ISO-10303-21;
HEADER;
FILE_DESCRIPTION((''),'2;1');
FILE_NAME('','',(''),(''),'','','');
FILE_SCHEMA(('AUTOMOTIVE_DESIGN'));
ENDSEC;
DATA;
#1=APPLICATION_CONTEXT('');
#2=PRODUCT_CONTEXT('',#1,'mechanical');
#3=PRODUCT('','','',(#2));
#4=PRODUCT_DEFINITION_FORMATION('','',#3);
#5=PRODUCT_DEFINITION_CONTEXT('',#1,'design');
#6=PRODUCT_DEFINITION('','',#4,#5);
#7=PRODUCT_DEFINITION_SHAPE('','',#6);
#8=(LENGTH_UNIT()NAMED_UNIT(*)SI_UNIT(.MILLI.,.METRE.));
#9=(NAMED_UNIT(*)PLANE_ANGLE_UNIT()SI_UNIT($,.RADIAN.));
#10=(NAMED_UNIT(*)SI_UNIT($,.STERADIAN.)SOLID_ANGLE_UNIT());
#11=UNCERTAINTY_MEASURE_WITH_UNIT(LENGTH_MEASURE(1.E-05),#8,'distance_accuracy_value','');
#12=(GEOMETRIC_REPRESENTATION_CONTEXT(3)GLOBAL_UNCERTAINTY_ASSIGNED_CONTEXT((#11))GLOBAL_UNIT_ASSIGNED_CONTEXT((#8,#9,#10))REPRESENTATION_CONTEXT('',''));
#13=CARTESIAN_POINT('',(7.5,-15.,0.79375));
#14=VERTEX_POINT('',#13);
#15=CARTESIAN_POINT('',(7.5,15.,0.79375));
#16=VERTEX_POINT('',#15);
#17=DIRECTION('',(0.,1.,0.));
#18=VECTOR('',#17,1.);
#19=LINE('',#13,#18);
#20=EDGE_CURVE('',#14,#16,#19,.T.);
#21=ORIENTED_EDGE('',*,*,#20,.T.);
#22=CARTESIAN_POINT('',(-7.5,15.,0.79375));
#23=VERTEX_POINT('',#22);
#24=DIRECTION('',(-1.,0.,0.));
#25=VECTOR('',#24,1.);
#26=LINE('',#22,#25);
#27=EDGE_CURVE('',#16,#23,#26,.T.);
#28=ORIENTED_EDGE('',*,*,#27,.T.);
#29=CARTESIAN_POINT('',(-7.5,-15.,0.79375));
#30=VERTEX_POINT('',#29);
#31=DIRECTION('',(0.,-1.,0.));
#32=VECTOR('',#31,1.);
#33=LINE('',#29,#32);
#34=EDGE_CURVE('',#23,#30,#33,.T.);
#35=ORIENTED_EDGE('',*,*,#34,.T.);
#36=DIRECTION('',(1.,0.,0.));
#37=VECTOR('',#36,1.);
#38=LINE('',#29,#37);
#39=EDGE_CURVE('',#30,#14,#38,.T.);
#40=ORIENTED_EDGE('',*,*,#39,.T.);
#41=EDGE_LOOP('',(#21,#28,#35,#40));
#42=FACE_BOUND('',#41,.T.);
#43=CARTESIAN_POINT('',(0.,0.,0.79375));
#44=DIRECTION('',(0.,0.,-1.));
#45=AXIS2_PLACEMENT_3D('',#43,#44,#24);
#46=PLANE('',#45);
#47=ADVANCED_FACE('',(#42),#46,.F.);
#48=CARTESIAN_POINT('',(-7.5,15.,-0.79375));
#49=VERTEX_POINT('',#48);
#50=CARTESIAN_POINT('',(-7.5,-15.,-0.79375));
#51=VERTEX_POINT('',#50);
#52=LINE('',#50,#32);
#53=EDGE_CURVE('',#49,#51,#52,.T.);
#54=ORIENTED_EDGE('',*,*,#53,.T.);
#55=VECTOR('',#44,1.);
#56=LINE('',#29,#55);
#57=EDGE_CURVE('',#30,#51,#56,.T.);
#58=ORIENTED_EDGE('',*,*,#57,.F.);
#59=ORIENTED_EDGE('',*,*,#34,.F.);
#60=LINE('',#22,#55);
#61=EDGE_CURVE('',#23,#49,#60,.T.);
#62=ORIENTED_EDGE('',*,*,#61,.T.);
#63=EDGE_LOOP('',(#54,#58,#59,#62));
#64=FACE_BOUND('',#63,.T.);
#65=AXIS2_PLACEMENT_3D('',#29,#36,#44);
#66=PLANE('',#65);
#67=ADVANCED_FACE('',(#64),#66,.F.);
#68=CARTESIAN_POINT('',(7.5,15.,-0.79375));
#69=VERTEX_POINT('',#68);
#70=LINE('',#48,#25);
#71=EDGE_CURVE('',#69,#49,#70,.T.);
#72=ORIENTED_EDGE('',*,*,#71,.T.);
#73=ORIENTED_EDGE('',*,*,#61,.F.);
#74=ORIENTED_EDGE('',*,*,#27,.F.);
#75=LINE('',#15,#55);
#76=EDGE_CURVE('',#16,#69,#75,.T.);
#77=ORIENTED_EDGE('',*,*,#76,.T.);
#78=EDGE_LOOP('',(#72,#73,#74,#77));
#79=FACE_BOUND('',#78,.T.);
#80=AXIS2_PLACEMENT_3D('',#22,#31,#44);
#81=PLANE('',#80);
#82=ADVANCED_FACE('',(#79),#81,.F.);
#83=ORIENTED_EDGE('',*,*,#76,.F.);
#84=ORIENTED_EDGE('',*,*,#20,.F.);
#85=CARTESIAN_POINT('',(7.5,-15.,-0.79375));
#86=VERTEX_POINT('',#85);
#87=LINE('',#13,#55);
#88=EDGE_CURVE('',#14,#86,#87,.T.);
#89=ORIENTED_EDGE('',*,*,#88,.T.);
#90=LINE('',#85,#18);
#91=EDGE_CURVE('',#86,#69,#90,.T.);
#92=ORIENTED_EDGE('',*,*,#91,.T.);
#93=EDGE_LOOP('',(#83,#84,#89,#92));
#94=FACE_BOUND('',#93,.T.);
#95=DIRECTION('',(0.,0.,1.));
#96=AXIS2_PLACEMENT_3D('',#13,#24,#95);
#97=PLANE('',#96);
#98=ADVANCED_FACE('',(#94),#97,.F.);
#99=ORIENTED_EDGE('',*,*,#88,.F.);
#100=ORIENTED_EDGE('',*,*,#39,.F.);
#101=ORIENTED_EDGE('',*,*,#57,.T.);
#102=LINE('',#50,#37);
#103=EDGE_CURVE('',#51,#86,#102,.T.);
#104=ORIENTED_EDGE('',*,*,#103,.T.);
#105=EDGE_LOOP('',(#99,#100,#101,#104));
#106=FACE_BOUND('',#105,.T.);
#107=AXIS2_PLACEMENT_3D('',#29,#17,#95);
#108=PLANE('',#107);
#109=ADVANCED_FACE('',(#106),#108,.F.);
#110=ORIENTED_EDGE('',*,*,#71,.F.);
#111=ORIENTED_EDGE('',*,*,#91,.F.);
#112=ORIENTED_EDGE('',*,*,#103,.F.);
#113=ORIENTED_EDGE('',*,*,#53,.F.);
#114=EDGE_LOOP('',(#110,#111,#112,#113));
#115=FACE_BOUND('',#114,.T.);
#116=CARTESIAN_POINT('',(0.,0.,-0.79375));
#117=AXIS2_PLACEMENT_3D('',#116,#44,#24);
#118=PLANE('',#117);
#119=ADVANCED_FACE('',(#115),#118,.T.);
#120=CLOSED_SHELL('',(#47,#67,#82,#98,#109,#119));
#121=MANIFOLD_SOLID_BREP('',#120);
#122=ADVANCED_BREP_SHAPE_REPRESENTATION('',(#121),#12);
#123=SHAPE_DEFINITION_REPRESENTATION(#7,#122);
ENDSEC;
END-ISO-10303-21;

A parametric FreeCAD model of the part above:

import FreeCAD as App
import Part
import Sketcher

doc = App.newDocument("Part")
params = doc.addObject("Spreadsheet::Sheet", "Params")
for row, (alias, value) in enumerate([
    ("sketch1_width", "15 mm"),
    ("sketch1_height", "30 mm"),
    ("pad1_length", "1.5875 mm"),
], start=1):
    params.set(f"A{row}", alias)
    params.set(f"B{row}", "=" + value)
    params.setAlias(f"B{row}", alias)

body = doc.addObject("PartDesign::Body", "Body")

# Sketch on XY plane
sketch1 = body.newObject("Sketcher::SketchObject", "Sketch")
sketch1.AttachmentSupport = (doc.getObject("XY_Plane"), [""])
sketch1.MapMode = "FlatFace"
sketch1.addGeometry([
    Part.LineSegment(App.Vector(-7.5, 15, 0), App.Vector(-7.5, -15, 0)),
    Part.LineSegment(App.Vector(-7.5, -15, 0), App.Vector(7.5, -15, 0)),
    Part.LineSegment(App.Vector(7.5, -15, 0), App.Vector(7.5, 15, 0)),
    Part.LineSegment(App.Vector(7.5, 15, 0), App.Vector(-7.5, 15, 0)),
], False)
sketch1.addConstraint([
    Sketcher.Constraint("Coincident", 0, 2, 1, 1),
    Sketcher.Constraint("Coincident", 1, 2, 2, 1),
    Sketcher.Constraint("Coincident", 2, 2, 3, 1),
    Sketcher.Constraint("Coincident", 3, 2, 0, 1),
    Sketcher.Constraint("Vertical", 0),
    Sketcher.Constraint("Horizontal", 1),
    Sketcher.Constraint("Vertical", 2),
    Sketcher.Constraint("Horizontal", 3),
    Sketcher.Constraint("Symmetric", 0, 2, 2, 2, -1, 1),
    Sketcher.Constraint("DistanceX", 1, 1, 1, 2, 15.0),
    Sketcher.Constraint("DistanceY", 0, 2, 0, 1, 30.0),
])
sketch1.setExpression("Constraints[9]", "Params.sketch1_width")
sketch1.setExpression("Constraints[10]", "Params.sketch1_height")
pad1 = body.newObject("PartDesign::Pad", "Pad")
pad1.Profile = sketch1
pad1.setExpression("Length", "Params.pad1_length")
pad1.Midplane = True

doc.recompute()
